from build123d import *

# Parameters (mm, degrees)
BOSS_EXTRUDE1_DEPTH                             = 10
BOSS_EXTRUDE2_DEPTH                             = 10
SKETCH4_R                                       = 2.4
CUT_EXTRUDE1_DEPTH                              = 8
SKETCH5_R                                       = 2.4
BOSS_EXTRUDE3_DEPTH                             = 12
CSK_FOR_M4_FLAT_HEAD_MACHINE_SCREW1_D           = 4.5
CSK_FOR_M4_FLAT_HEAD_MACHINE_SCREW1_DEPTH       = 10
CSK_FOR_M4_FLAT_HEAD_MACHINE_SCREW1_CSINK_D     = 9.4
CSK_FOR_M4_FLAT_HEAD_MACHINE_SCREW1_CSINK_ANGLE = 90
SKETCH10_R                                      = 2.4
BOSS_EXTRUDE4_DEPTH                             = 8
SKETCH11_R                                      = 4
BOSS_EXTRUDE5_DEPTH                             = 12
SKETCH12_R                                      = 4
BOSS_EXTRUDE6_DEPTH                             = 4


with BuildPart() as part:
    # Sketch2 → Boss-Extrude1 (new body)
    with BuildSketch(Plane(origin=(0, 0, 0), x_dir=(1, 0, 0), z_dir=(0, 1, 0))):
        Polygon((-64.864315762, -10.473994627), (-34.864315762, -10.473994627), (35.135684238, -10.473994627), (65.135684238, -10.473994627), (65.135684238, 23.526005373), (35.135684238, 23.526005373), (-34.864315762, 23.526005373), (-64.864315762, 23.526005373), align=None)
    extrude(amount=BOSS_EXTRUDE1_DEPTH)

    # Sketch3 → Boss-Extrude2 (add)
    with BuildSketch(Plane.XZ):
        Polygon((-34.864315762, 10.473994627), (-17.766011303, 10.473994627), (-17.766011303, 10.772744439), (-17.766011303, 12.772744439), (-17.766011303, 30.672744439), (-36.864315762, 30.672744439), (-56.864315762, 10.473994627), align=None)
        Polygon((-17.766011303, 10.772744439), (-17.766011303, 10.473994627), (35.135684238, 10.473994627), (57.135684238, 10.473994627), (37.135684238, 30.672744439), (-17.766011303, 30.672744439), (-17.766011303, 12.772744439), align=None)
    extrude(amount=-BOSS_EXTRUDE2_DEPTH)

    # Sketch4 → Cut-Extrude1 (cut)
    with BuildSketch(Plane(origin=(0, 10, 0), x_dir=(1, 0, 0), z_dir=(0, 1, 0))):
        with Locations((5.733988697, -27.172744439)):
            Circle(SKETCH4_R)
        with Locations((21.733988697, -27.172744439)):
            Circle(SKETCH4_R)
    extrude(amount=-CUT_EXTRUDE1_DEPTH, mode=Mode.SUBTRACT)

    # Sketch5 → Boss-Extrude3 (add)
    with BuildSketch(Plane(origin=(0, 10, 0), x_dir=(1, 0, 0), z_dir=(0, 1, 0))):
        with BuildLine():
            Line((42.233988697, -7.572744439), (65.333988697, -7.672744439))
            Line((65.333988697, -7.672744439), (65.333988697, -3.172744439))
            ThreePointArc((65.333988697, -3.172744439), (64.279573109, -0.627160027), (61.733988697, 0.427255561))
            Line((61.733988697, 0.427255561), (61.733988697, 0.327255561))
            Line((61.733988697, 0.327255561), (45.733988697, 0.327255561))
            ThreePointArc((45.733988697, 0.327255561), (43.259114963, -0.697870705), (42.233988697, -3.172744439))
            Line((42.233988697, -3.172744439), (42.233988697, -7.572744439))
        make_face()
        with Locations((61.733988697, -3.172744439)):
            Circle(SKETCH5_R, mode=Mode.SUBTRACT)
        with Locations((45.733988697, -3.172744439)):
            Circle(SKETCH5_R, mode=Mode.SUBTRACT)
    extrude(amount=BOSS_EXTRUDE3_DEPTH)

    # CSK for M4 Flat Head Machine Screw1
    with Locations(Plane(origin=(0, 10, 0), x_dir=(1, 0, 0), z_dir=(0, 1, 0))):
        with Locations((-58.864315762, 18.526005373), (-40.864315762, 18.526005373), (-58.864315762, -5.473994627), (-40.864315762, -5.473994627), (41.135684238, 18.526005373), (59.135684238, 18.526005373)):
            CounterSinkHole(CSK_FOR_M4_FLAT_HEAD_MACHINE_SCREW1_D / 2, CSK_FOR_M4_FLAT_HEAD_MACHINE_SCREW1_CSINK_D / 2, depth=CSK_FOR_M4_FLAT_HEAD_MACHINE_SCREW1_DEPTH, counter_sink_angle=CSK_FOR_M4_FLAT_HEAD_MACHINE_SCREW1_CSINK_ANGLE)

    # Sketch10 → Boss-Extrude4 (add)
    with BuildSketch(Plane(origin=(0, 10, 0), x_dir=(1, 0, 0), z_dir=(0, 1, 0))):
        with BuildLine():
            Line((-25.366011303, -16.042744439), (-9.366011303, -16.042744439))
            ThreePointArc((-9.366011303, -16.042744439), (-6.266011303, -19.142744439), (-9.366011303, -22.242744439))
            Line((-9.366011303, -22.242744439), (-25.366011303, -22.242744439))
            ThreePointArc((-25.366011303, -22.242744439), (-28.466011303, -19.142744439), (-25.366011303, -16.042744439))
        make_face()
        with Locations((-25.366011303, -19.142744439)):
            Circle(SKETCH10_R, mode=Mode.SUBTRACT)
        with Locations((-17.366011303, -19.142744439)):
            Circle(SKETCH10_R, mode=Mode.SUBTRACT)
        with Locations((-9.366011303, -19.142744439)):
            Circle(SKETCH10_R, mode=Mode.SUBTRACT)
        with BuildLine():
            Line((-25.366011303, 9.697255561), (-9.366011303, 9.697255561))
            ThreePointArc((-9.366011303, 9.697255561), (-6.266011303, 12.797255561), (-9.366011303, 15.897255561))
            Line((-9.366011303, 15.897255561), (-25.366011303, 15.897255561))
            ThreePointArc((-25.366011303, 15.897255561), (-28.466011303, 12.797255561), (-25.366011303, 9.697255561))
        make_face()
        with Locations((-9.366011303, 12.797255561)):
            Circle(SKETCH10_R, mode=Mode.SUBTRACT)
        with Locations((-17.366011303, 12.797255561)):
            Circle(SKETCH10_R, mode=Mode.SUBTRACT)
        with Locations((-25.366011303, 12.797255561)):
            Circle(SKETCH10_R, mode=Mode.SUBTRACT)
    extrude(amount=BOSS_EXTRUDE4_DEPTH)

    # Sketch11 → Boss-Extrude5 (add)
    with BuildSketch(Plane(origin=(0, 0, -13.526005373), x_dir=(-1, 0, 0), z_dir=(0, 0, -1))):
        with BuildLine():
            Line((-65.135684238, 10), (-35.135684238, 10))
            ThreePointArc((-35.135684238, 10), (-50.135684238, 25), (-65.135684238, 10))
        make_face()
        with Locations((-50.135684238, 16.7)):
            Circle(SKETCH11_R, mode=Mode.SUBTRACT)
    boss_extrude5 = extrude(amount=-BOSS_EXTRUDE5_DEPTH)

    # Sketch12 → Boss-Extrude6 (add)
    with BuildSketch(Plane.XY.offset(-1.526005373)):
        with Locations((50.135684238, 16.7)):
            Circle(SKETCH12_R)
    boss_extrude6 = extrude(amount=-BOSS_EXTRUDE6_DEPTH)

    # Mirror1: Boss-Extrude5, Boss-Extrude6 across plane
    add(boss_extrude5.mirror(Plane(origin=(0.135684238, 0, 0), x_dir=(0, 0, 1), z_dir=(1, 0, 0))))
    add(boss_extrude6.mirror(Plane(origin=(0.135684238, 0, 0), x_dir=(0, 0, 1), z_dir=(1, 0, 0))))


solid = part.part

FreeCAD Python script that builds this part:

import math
import FreeCAD as App
import Part
import Sketcher

V = App.Vector
Q = App.Units.Quantity

doc = App.newDocument("Part")
body = doc.addObject("PartDesign::Body", "Body")

# Sketch on XZ plane
sketch1 = body.newObject("Sketcher::SketchObject", "Sketch")
sketch1.AttachmentSupport = (doc.getObject("XZ_Plane"), [""])
sketch1.MapMode = "FlatFace"
sketch1.addGeometry(Part.LineSegment(V(-65, 10, 0), V(65, 10, 0)), False)
sketch1.addGeometry(Part.LineSegment(V(65, 10, 0), V(65, -24, 0)), False)
sketch1.addGeometry(Part.LineSegment(V(65, -24, 0), V(-65, -24, 0)), False)
sketch1.addGeometry(Part.LineSegment(V(-65, -24, 0), V(-65, 10, 0)), False)
sketch1.addConstraint(Sketcher.Constraint("Coincident", 0, 2, 1, 1))
sketch1.addConstraint(Sketcher.Constraint("Coincident", 1, 2, 2, 1))
sketch1.addConstraint(Sketcher.Constraint("Coincident", 2, 2, 3, 1))
sketch1.addConstraint(Sketcher.Constraint("Coincident", 3, 2, 0, 1))
sketch1.addConstraint(Sketcher.Constraint("Horizontal", 0))
sketch1.addConstraint(Sketcher.Constraint("Vertical", 1))
sketch1.addConstraint(Sketcher.Constraint("Horizontal", 2))
sketch1.addConstraint(Sketcher.Constraint("Vertical", 3))
sketch1.addConstraint(Sketcher.Constraint("DistanceX", 0, 1, 0, 2, Q("130 mm")))
sketch1.addConstraint(Sketcher.Constraint("DistanceY", 1, 2, 1, 1, Q("34 mm")))
sketch1.addConstraint(Sketcher.Constraint("DistanceX", -1, 1, 0, 2, Q("65.135684 mm")))
sketch1.addConstraint(Sketcher.Constraint("DistanceY", -1, 1, 0, 2, Q("10.473995 mm")))
pad1 = body.newObject("PartDesign::Pad", "Pad")
pad1.Profile = sketch1
pad1.Length = 10
pad1.Reversed = True

# Sketch on XZ plane
sketch2 = body.newObject("Sketcher::SketchObject", "Sketch001")
sketch2.AttachmentSupport = (doc.getObject("XZ_Plane"), [""])
sketch2.MapMode = "FlatFace"
sketch2.addGeometry(Part.LineSegment(V(-37, 31, 0), V(-57, 10, 0)), False)
sketch2.addGeometry(Part.LineSegment(V(-57, 10, 0), V(57, 10, 0)), False)
sketch2.addGeometry(Part.LineSegment(V(57, 10, 0), V(37, 31, 0)), False)
sketch2.addGeometry(Part.LineSegment(V(37, 31, 0), V(-37, 31, 0)), False)
sketch2.addConstraint(Sketcher.Constraint("Coincident", 0, 2, 1, 1))
sketch2.addConstraint(Sketcher.Constraint("Coincident", 1, 2, 2, 1))
sketch2.addConstraint(Sketcher.Constraint("Coincident", 2, 2, 3, 1))
sketch2.addConstraint(Sketcher.Constraint("Coincident", 3, 2, 0, 1))
sketch2.addConstraint(Sketcher.Constraint("Horizontal", 1))
sketch2.addConstraint(Sketcher.Constraint("Horizontal", 3))
sketch2.addConstraint(Sketcher.Constraint("Equal", 0, 2))
sketch2.addConstraint(Sketcher.Constraint("DistanceX", 1, 1, 1, 2, Q("114 mm")))
sketch2.addConstraint(Sketcher.Constraint("DistanceX", 3, 2, 3, 1, Q("74 mm")))
sketch2.addConstraint(Sketcher.Constraint("DistanceY", 1, 2, 2, 2, Q("20.19875 mm")))
sketch2.addConstraint(Sketcher.Constraint("DistanceX", 0, 2, -1, 1, Q("56.864316 mm")))
sketch2.addConstraint(Sketcher.Constraint("DistanceY", -1, 1, 0, 2, Q("10.473995 mm")))
pad2 = body.newObject("PartDesign::Pad", "Pad001")
pad2.Profile = sketch2
pad2.Length = 10
pad2.Reversed = True

# Sketch on XZ plane
sketch3 = body.newObject("Sketcher::SketchObject", "Sketch002")
sketch3.AttachmentSupport = (doc.getObject("XZ_Plane"), [""])
sketch3.MapMode = "FlatFace"
sketch3.AttachmentOffset = App.Placement(V(0, 0, -10), App.Rotation())
sketch3.addGeometry(Part.Circle(V(5.7, 27.2, 0), V(0, 0, 1), 2.4), False)
sketch3.addGeometry(Part.Circle(V(21.7, 27.2, 0), V(0, 0, 1), 2.4), False)
sketch3.addConstraint(Sketcher.Constraint("Equal", 0, 1))
sketch3.addConstraint(Sketcher.Constraint("Horizontal", 0, 3, 1, 3))
sketch3.addConstraint(Sketcher.Constraint("Diameter", 0, Q("4.8 mm")))
sketch3.addConstraint(Sketcher.Constraint("DistanceX", 0, 3, 1, 3, Q("16 mm")))
sketch3.addConstraint(Sketcher.Constraint("DistanceX", -1, 1, 0, 3, Q("5.733989 mm")))
sketch3.addConstraint(Sketcher.Constraint("DistanceY", -1, 1, 0, 3, Q("27.172744 mm")))
pocket1 = body.newObject("PartDesign::Pocket", "Pocket")
pocket1.Profile = sketch3
pocket1.Length = 8
pocket1.Reversed = True

# Sketch on XZ plane
sketch4 = body.newObject("Sketcher::SketchObject", "Sketch003")
sketch4.AttachmentSupport = (doc.getObject("XZ_Plane"), [""])
sketch4.MapMode = "FlatFace"
sketch4.AttachmentOffset = App.Placement(V(0, 0, -10), App.Rotation())
sketch4.addGeometry(Part.LineSegment(V(42.23, 7.57, 0), V(65.33, 7.67, 0)), False)
sketch4.addGeometry(Part.LineSegment(V(65.33, 7.67, 0), V(65.33, 3.17, 0)), False)
sketch4.addGeometry(Part.ArcOfCircle(Part.Circle(V(61.73, 3.17, 0), V(0, 0, 1), 3.6), math.radians(-90), math.radians(0)), False)
sketch4.addGeometry(Part.LineSegment(V(61.73, -0.43, 0), V(61.73, -0.33, 0)), False)
sketch4.addGeometry(Part.LineSegment(V(61.73, -0.33, 0), V(45.73, -0.33, 0)), False)
sketch4.addGeometry(Part.ArcOfCircle(Part.Circle(V(45.73, 3.17, 0), V(0, 0, 1), 3.5), math.radians(-180), math.radians(-90)), False)
sketch4.addGeometry(Part.LineSegment(V(42.23, 3.17, 0), V(42.23, 7.57, 0)), False)
sketch4.addGeometry(Part.Circle(V(45.73, 3.17, 0), V(0, 0, 1), 2.4), False)
sketch4.addGeometry(Part.Circle(V(61.73, 3.17, 0), V(0, 0, 1), 2.4), False)
sketch4.addConstraint(Sketcher.Constraint("Coincident", 0, 2, 1, 1))
sketch4.addConstraint(Sketcher.Constraint("Tangent", 1, 2, 2, 2))
sketch4.addConstraint(Sketcher.Constraint("Coincident", 2, 1, 3, 1))
sketch4.addConstraint(Sketcher.Constraint("Coincident", 3, 2, 4, 1))
sketch4.addConstraint(Sketcher.Constraint("Tangent", 4, 2, 5, 2))
sketch4.addConstraint(Sketcher.Constraint("Tangent", 5, 1, 6, 1))
sketch4.addConstraint(Sketcher.Constraint("Coincident", 6, 2, 0, 1))
sketch4.addConstraint(Sketcher.Constraint("Vertical", 1))
sketch4.addConstraint(Sketcher.Constraint("Vertical", 3))
sketch4.addConstraint(Sketcher.Constraint("Horizontal", 4))
sketch4.addConstraint(Sketcher.Constraint("Vertical", 6))
sketch4.addConstraint(Sketcher.Constraint("Coincident", 7, 3, 5, 3))
sketch4.addConstraint(Sketcher.Constraint("Coincident", 8, 3, 2, 3))
sketch4.addConstraint(Sketcher.Constraint("Equal", 7, 8))
sketch4.addConstraint(Sketcher.Constraint("Horizontal", 2, 3, 5, 3))
sketch4.addConstraint(Sketcher.Constraint("Vertical", 8, 3, 2, 1))
sketch4.addConstraint(Sketcher.Constraint("Diameter", 7, Q("4.8 mm")))
sketch4.addConstraint(Sketcher.Constraint("Radius", 2, Q("3.6 mm")))
sketch4.addConstraint(Sketcher.Constraint("Radius", 5, Q("3.5 mm")))
sketch4.addConstraint(Sketcher.Constraint("DistanceX", 4, 2, 4, 1, Q("16 mm")))
sketch4.addConstraint(Sketcher.Constraint("DistanceY", 1, 2, 1, 1, Q("4.5 mm")))
sketch4.addConstraint(Sketcher.Constraint("DistanceY", 6, 1, 6, 2, Q("4.4 mm")))
sketch4.addConstraint(Sketcher.Constraint("DistanceX", -1, 1, 2, 3, Q("61.733989 mm")))
sketch4.addConstraint(Sketcher.Constraint("DistanceY", -1, 1, 2, 3, Q("3.172744 mm")))
pad3 = body.newObject("PartDesign::Pad", "Pad002")
pad3.Profile = sketch4
pad3.Length = 12
pad3.Reversed = True

# Sketch on XZ plane
sketch5 = body.newObject("Sketcher::SketchObject", "Sketch004")
sketch5.AttachmentSupport = (doc.getObject("XZ_Plane"), [""])
sketch5.MapMode = "FlatFace"
sketch5.AttachmentOffset = App.Placement(V(0, 0, -10), App.Rotation())
sketch5.addGeometry(Part.Circle(V(-58.9, -18.5, 0), V(0, 0, 1), 2.2), False)
sketch5.addGeometry(Part.Circle(V(-40.9, -18.5, 0), V(0, 0, 1), 2.2), False)
sketch5.addGeometry(Part.Circle(V(-58.9, 5.5, 0), V(0, 0, 1), 2.2), False)
sketch5.addGeometry(Part.Circle(V(-40.9, 5.5, 0), V(0, 0, 1), 2.2), False)
sketch5.addGeometry(Part.Circle(V(41.1, -18.5, 0), V(0, 0, 1), 2.2), False)
sketch5.addGeometry(Part.Circle(V(59.1, -18.5, 0), V(0, 0, 1), 2.2), False)
sketch5.addConstraint(Sketcher.Constraint("Equal", 0, 1))
sketch5.addConstraint(Sketcher.Constraint("Equal", 1, 2))
sketch5.addConstraint(Sketcher.Constraint("Equal", 2, 3))
sketch5.addConstraint(Sketcher.Constraint("Equal", 3, 4))
sketch5.addConstraint(Sketcher.Constraint("Equal", 4, 5))
sketch5.addConstraint(Sketcher.Constraint("Horizontal", 0, 3, 1, 3))
sketch5.addConstraint(Sketcher.Constraint("Horizontal", 2, 3, 3, 3))
sketch5.addConstraint(Sketcher.Constraint("Horizontal", 1, 3, 4, 3))
sketch5.addConstraint(Sketcher.Constraint("Horizontal", 4, 3, 5, 3))
sketch5.addConstraint(Sketcher.Constraint("Vertical", 0, 3, 2, 3))
sketch5.addConstraint(Sketcher.Constraint("Vertical", 1, 3, 3, 3))
sketch5.addConstraint(Sketcher.Constraint("Diameter", 0, Q("4.5 mm")))
sketch5.addConstraint(Sketcher.Constraint("DistanceX", 0, 3, 1, 3, Q("18 mm")))
sketch5.addConstraint(Sketcher.Constraint("DistanceY", 0, 3, 2, 3, Q("24 mm")))
sketch5.addConstraint(Sketcher.Constraint("DistanceX", 1, 3, 4, 3, Q("82 mm")))
sketch5.addConstraint(Sketcher.Constraint("DistanceX", 4, 3, 5, 3, Q("18 mm")))
sketch5.addConstraint(Sketcher.Constraint("DistanceX", 0, 3, -1, 1, Q("58.864316 mm")))
sketch5.addConstraint(Sketcher.Constraint("DistanceY", 0, 3, -1, 1, Q("18.526005 mm")))
doc.recompute()
hole = body.newObject("PartDesign::Hole", "Hole")
hole.Profile = sketch5
hole.ThreadType = "None"
hole.Diameter = 4.5
hole.DepthType = "Dimension"
hole.Depth = 10
hole.DrillPoint = "Flat"
hole.HoleCutType = "Countersink"
hole.HoleCutDiameter = 9.4
hole.HoleCutCountersinkAngle = 90
hole.Reversed = True

# Sketch on XZ plane
sketch6 = body.newObject("Sketcher::SketchObject", "Sketch005")
sketch6.AttachmentSupport = (doc.getObject("XZ_Plane"), [""])
sketch6.MapMode = "FlatFace"
sketch6.AttachmentOffset = App.Placement(V(0, 0, -10), App.Rotation())
sketch6.addGeometry(Part.LineSegment(V(-9.4, 16, 0), V(-25.4, 16, 0)), False)
sketch6.addGeometry(Part.ArcOfCircle(Part.Circle(V(-25.4, 19.1, 0), V(0, 0, 1), 3.1), math.radians(90), math.radians(270)), False)
sketch6.addGeometry(Part.LineSegment(V(-25.4, 22.2, 0), V(-9.4, 22.2, 0)), False)
sketch6.addGeometry(Part.ArcOfCircle(Part.Circle(V(-9.4, 19.1, 0), V(0, 0, 1), 3.1), math.radians(-90), math.radians(90)), False)
sketch6.addGeometry(Part.Circle(V(-9.4, 19.1, 0), V(0, 0, 1), 2.4), False)
sketch6.addGeometry(Part.Circle(V(-17.4, 19.1, 0), V(0, 0, 1), 2.4), False)
sketch6.addGeometry(Part.Circle(V(-25.4, 19.1, 0), V(0, 0, 1), 2.4), False)
sketch6.addGeometry(Part.LineSegment(V(-25.4, -9.7, 0), V(-9.4, -9.7, 0)), False)
sketch6.addGeometry(Part.ArcOfCircle(Part.Circle(V(-9.4, -12.8, 0), V(0, 0, 1), 3.1), math.radians(-90), math.radians(90)), False)
sketch6.addGeometry(Part.LineSegment(V(-9.4, -15.9, 0), V(-25.4, -15.9, 0)), False)
sketch6.addGeometry(Part.ArcOfCircle(Part.Circle(V(-25.4, -12.8, 0), V(0, 0, 1), 3.1), math.radians(90), math.radians(270)), False)
sketch6.addGeometry(Part.Circle(V(-25.4, -12.8, 0), V(0, 0, 1), 2.4), False)
sketch6.addGeometry(Part.Circle(V(-17.4, -12.8, 0), V(0, 0, 1), 2.4), False)
sketch6.addGeometry(Part.Circle(V(-9.4, -12.8, 0), V(0, 0, 1), 2.4), False)
sketch6.addConstraint(Sketcher.Constraint("Tangent", 0, 2, 1, 2))
sketch6.addConstraint(Sketcher.Constraint("Tangent", 1, 1, 2, 1))
sketch6.addConstraint(Sketcher.Constraint("Tangent", 2, 2, 3, 2))
sketch6.addConstraint(Sketcher.Constraint("Tangent", 3, 1, 0, 1))
sketch6.addConstraint(Sketcher.Constraint("Tangent", 7, 2, 8, 2))
sketch6.addConstraint(Sketcher.Constraint("Tangent", 8, 1, 9, 1))
sketch6.addConstraint(Sketcher.Constraint("Tangent", 9, 2, 10, 2))
sketch6.addConstraint(Sketcher.Constraint("Tangent", 10, 1, 7, 1))
sketch6.addConstraint(Sketcher.Constraint("Horizontal", 0))
sketch6.addConstraint(Sketcher.Constraint("Horizontal", 2))
sketch6.addConstraint(Sketcher.Constraint("Horizontal", 7))
sketch6.addConstraint(Sketcher.Constraint("Horizontal", 9))
sketch6.addConstraint(Sketcher.Constraint("Coincident", 4, 3, 3, 3))
sketch6.addConstraint(Sketcher.Constraint("Coincident", 6, 3, 1, 3))
sketch6.addConstraint(Sketcher.Constraint("Coincident", 11, 3, 10, 3))
sketch6.addConstraint(Sketcher.Constraint("Coincident", 13, 3, 8, 3))
sketch6.addConstraint(Sketcher.Constraint("Equal", 4, 5))
sketch6.addConstraint(Sketcher.Constraint("Equal", 5, 6))
sketch6.addConstraint(Sketcher.Constraint("Equal", 3, 8))
sketch6.addConstraint(Sketcher.Constraint("Equal", 6, 11))
sketch6.addConstraint(Sketcher.Constraint("Equal", 11, 12))
sketch6.addConstraint(Sketcher.Constraint("Equal", 12, 13))
sketch6.addConstraint(Sketcher.Constraint("Horizontal", 4, 3, 5, 3))
sketch6.addConstraint(Sketcher.Constraint("Horizontal", 11, 3, 12, 3))
sketch6.addConstraint(Sketcher.Constraint("Vertical", 4, 3, 8, 3))
sketch6.addConstraint(Sketcher.Constraint("Vertical", 6, 3, 10, 3))
sketch6.addConstraint(Sketcher.Constraint("Vertical", 5, 3, 12, 3))
sketch6.addConstraint(Sketcher.Constraint("Diameter", 4, Q("4.8 mm")))
sketch6.addConstraint(Sketcher.Constraint("Radius", 1, Q("3.1 mm")))
sketch6.addConstraint(Sketcher.Constraint("DistanceX", 0, 2, 0, 1, Q("16 mm")))
sketch6.addConstraint(Sketcher.Constraint("DistanceX", 1, 3, 5, 3, Q("8 mm")))
sketch6.addConstraint(Sketcher.Constraint("DistanceY", 8, 3, 3, 3, Q("31.94 mm")))
sketch6.addConstraint(Sketcher.Constraint("DistanceX", 1, 3, -1, 1, Q("25.366011 mm")))
sketch6.addConstraint(Sketcher.Constraint("DistanceY", -1, 1, 1, 3, Q("19.142744 mm")))
pad4 = body.newObject("PartDesign::Pad", "Pad003")
pad4.Profile = sketch6
pad4.Length = 8
pad4.Reversed = True

# Sketch on XY plane
sketch7 = body.newObject("Sketcher::SketchObject", "Sketch006")
sketch7.AttachmentSupport = (doc.getObject("XY_Plane"), [""])
sketch7.MapMode = "FlatFace"
sketch7.AttachmentOffset = App.Placement(V(0, 0, -13.526005), App.Rotation())
sketch7.addGeometry(Part.LineSegment(V(65.1, 10, 0), V(35.1, 10, 0)), False)
sketch7.addGeometry(Part.ArcOfCircle(Part.Circle(V(50.1, 10, 0), V(0, 0, 1), 15), math.radians(0), math.radians(180)), False)
sketch7.addGeometry(Part.Circle(V(50.1, 16.7, 0), V(0, 0, 1), 4), False)
sketch7.addConstraint(Sketcher.Constraint("Coincident", 0, 1, 1, 1))
sketch7.addConstraint(Sketcher.Constraint("Coincident", 1, 2, 0, 2))
sketch7.addConstraint(Sketcher.Constraint("Horizontal", 0))
sketch7.addConstraint(Sketcher.Constraint("Horizontal", 1, 3, 0, 1))
sketch7.addConstraint(Sketcher.Constraint("Vertical", 1, 3, 2, 3))
sketch7.addConstraint(Sketcher.Constraint("Diameter", 2, Q("8 mm")))
sketch7.addConstraint(Sketcher.Constraint("Radius", 1, Q("15 mm")))
sketch7.addConstraint(Sketcher.Constraint("DistanceY", -1, 1, 1, 3, Q("10 mm")))
sketch7.addConstraint(Sketcher.Constraint("DistanceY", -1, 1, 2, 3, Q("16.7 mm")))
sketch7.addConstraint(Sketcher.Constraint("DistanceX", -1, 1, 1, 3, Q("50.135684 mm")))
pad5 = body.newObject("PartDesign::Pad", "Pad004")
pad5.Profile = sketch7
pad5.Length = 12

# Sketch on XY plane
sketch8 = body.newObject("Sketcher::SketchObject", "Sketch007")
sketch8.AttachmentSupport = (doc.getObject("XY_Plane"), [""])
sketch8.MapMode = "FlatFace"
sketch8.AttachmentOffset = App.Placement(V(0, 0, -1.526005), App.Rotation())
sketch8.addGeometry(Part.Circle(V(50.1, 16.7, 0), V(0, 0, 1), 4), False)
sketch8.addConstraint(Sketcher.Constraint("Diameter", 0, Q("8 mm")))
sketch8.addConstraint(Sketcher.Constraint("DistanceY", -1, 1, 0, 3, Q("16.7 mm")))
sketch8.addConstraint(Sketcher.Constraint("DistanceX", -1, 1, 0, 3, Q("50.135684 mm")))
pad6 = body.newObject("PartDesign::Pad", "Pad005")
pad6.Profile = sketch8
pad6.Length = 4
pad6.Reversed = True
doc.recompute()

datumplane = body.newObject("PartDesign::Plane", "DatumPlane")
datumplane.AttachmentSupport = (doc.getObject("YZ_Plane"), [""])
datumplane.MapMode = "FlatFace"
datumplane.AttachmentOffset = App.Placement(V(0, 0, 0.135684), App.Rotation())
mirrored = body.newObject("PartDesign::Mirrored", "Mirrored")
mirrored.Originals = [pad5, pad6]
mirrored.MirrorPlane = (datumplane, [""])
body.Tip = mirrored

doc.recompute()
